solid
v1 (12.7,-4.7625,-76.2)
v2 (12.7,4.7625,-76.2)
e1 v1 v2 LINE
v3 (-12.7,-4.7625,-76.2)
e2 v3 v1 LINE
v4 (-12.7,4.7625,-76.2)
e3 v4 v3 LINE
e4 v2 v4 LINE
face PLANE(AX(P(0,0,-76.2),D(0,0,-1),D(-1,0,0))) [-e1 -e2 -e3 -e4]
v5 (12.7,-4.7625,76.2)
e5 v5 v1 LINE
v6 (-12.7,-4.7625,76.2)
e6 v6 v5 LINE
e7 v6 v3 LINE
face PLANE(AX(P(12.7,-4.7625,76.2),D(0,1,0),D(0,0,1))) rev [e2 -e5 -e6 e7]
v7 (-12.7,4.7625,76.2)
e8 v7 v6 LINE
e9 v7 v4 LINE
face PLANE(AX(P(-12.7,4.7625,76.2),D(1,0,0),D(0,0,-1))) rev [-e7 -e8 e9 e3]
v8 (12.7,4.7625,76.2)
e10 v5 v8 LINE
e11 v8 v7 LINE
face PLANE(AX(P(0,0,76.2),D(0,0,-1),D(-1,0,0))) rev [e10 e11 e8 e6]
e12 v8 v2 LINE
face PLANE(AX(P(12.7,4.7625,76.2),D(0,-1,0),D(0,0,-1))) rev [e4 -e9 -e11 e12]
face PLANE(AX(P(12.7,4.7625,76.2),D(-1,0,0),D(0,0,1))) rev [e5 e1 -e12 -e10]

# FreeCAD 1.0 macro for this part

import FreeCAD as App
import Part
import Sketcher

V = App.Vector
Q = App.Units.Quantity

doc = App.newDocument("Part")
body = doc.addObject("PartDesign::Body", "Body")

sketch1 = body.newObject("Sketcher::SketchObject", "Sketch")
sketch1.AttachmentSupport = (doc.getObject("XY_Plane"), [""])
sketch1.MapMode = "FlatFace"
sketch1.addGeometry([
    Part.LineSegment(V(-12.7, 4.7625, 0), V(-12.7, -4.7625, 0)),
    Part.LineSegment(V(-12.7, -4.7625, 0), V(12.7, -4.7625, 0)),
    Part.LineSegment(V(12.7, -4.7625, 0), V(12.7, 4.7625, 0)),
    Part.LineSegment(V(12.7, 4.7625, 0), V(-12.7, 4.7625, 0)),
], False)
sketch1.addConstraint([
    Sketcher.Constraint("Coincident", 0, 2, 1, 1),
    Sketcher.Constraint("Coincident", 1, 2, 2, 1),
    Sketcher.Constraint("Coincident", 2, 2, 3, 1),
    Sketcher.Constraint("Coincident", 3, 2, 0, 1),
    Sketcher.Constraint("Vertical", 0),
    Sketcher.Constraint("Horizontal", 1),
    Sketcher.Constraint("Vertical", 2),
    Sketcher.Constraint("Horizontal", 3),
    Sketcher.Constraint("Symmetric", 0, 2, 2, 2, -1, 1),
    Sketcher.Constraint("DistanceX", 1, 1, 1, 2, Q("1 in")),
    Sketcher.Constraint("DistanceY", 0, 2, 0, 1, Q("0.375 in")),
])
pad1 = body.newObject("PartDesign::Pad", "Pad")
pad1.Profile = sketch1
pad1.Type = "TwoLengths"
pad1.Length = Q("3 in")
pad1.Length2 = Q("3 in")

doc.recompute()
